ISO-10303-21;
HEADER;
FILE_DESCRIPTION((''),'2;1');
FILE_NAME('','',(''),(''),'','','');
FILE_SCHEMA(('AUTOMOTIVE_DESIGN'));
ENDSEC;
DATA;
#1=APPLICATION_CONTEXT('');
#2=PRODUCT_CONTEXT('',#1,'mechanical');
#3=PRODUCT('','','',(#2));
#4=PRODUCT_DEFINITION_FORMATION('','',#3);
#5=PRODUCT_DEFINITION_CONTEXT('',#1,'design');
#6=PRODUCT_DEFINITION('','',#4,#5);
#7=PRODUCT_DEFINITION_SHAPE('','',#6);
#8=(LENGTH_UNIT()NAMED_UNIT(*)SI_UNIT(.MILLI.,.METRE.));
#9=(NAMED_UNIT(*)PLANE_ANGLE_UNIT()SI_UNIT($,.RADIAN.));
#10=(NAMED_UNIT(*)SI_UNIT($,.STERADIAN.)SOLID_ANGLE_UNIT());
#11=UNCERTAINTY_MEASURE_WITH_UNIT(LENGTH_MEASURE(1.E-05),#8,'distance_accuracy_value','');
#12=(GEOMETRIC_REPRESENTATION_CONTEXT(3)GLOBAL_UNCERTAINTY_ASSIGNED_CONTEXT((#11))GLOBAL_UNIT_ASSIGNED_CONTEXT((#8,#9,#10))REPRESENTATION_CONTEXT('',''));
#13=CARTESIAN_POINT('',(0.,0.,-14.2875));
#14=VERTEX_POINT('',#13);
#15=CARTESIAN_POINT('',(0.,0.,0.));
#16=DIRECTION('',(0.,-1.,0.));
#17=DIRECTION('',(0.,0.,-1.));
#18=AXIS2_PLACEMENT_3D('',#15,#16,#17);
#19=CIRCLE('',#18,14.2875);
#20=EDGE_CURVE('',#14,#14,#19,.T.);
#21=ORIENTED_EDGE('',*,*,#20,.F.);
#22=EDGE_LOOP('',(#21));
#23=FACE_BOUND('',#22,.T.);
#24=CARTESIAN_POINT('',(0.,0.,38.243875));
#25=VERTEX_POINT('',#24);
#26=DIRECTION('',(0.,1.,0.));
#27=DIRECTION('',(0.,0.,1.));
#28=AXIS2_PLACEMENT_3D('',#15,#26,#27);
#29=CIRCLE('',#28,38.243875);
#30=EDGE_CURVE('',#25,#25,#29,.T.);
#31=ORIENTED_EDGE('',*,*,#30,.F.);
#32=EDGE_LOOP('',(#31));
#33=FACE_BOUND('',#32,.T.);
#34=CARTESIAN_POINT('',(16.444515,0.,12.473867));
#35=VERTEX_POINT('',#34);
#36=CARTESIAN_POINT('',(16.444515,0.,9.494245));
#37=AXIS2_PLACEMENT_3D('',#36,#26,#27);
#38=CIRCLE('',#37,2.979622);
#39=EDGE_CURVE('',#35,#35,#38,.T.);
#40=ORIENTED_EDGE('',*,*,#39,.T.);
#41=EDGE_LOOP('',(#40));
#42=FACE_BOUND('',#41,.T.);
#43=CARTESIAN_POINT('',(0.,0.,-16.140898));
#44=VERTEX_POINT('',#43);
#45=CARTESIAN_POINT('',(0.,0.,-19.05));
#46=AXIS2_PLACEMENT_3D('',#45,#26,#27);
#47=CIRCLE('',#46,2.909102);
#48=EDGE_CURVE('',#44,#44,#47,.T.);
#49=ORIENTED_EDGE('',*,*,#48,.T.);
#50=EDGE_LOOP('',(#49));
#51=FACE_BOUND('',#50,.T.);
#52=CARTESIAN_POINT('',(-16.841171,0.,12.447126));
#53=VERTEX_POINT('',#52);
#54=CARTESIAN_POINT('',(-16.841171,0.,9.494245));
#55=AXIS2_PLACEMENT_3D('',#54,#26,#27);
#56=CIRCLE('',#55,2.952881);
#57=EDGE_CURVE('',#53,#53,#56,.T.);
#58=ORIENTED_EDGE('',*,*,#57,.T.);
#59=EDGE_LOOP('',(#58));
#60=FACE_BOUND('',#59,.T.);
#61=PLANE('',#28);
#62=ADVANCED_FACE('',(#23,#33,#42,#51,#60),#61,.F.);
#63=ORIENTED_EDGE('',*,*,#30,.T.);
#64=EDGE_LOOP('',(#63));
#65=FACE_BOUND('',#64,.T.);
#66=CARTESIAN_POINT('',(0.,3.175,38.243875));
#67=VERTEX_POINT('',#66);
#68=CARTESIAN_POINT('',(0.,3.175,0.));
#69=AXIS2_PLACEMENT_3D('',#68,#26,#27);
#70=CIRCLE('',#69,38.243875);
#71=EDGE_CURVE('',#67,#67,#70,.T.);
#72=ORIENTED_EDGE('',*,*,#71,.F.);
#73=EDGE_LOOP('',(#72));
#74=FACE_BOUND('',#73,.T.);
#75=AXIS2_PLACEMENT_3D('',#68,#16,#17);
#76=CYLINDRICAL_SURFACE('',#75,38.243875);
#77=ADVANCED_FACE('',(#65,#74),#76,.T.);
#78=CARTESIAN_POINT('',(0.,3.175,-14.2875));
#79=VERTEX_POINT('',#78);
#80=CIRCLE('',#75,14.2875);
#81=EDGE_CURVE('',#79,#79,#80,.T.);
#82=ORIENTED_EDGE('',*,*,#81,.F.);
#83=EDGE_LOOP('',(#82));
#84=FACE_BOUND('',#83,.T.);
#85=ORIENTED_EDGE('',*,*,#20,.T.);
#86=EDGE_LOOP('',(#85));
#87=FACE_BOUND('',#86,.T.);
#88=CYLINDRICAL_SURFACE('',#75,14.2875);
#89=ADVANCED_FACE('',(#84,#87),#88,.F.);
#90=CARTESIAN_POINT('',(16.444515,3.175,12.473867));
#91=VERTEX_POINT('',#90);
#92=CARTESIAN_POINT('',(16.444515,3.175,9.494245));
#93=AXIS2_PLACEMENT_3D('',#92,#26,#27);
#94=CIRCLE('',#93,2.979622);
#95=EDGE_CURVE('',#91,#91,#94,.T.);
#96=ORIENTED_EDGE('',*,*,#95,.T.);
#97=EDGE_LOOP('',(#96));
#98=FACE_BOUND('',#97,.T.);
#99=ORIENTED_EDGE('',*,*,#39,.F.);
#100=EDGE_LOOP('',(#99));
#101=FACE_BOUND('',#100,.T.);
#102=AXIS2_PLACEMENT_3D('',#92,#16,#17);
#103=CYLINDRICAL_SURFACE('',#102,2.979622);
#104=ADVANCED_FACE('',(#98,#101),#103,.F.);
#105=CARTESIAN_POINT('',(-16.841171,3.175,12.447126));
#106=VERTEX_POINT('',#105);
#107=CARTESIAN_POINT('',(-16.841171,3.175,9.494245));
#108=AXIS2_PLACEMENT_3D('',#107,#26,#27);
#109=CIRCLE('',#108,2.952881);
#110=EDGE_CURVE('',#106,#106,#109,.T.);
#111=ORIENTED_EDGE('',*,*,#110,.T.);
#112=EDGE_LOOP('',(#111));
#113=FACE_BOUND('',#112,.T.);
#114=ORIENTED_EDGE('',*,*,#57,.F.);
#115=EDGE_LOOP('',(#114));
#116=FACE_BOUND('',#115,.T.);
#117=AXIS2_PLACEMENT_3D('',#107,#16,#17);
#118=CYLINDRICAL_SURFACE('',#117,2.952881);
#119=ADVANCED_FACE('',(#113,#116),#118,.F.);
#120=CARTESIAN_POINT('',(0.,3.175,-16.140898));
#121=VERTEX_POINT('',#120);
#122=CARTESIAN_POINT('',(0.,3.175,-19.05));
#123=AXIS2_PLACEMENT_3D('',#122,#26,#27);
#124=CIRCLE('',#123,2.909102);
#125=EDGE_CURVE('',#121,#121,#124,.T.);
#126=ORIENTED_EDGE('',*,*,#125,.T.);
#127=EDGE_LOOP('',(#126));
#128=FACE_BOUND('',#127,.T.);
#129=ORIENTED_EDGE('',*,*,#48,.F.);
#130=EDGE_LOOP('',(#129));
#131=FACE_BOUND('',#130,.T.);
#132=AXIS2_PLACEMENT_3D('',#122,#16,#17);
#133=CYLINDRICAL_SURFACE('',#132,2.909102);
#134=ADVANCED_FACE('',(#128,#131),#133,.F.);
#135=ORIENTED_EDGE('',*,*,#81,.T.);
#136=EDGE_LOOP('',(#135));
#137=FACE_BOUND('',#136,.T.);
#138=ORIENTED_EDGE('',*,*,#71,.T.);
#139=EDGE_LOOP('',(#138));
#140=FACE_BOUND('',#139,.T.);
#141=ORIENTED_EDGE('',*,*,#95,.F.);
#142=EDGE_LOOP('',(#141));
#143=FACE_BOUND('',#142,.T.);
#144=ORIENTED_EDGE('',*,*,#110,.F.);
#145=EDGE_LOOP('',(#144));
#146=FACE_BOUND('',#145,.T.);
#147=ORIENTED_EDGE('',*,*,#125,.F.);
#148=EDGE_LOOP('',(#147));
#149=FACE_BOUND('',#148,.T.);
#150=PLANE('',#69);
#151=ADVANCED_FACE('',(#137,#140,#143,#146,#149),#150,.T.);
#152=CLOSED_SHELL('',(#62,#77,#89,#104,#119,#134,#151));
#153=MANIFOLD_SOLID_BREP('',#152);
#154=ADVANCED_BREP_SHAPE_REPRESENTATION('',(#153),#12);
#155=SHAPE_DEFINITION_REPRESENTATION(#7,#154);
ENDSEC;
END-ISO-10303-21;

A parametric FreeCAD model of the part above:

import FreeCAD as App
import Part
import Sketcher

V = App.Vector
Q = App.Units.Quantity

doc = App.newDocument("Part")
body = doc.addObject("PartDesign::Body", "Body")

sketch1 = body.newObject("Sketcher::SketchObject", "Sketch")
sketch1.AttachmentSupport = (doc.getObject("XZ_Plane"), [""])
sketch1.MapMode = "FlatFace"
sketch1.addGeometry([
    Part.Circle(V(0, 0, 0), V(0, 0, 1), 38.2),
    Part.Circle(V(-16.8, 9.5, 0), V(0, 0, 1), 3),
    Part.Circle(V(0, -19.1, 0), V(0, 0, 1), 2.9),
    Part.Circle(V(0, 0, 0), V(0, 0, 1), 12.9),
    Part.Circle(V(16.4, 9.5, 0), V(0, 0, 1), 3),
], False)
sketch1.addConstraint([
    Sketcher.Constraint("Coincident", 0, 3, -1, 1),
    Sketcher.Constraint("Coincident", 3, 3, -1, 1),
    Sketcher.Constraint("PointOnObject", 2, 3, -2),
    Sketcher.Constraint("Horizontal", 1, 3, 4, 3),
    Sketcher.Constraint("DistanceY", 2, 3, -1, 1, Q("0.75 in")),
    Sketcher.Constraint("Diameter", 0, 76.48775),
    Sketcher.Constraint("Diameter", 1, 5.905761),
    Sketcher.Constraint("Diameter", 2, 5.818204),
    Sketcher.Constraint("Diameter", 3, 25.720868),
    Sketcher.Constraint("Diameter", 4, 5.959244),
    Sketcher.Constraint("DistanceX", 1, 3, -1, 1, 16.841171),
    Sketcher.Constraint("DistanceY", -1, 1, 1, 3, 9.494245),
    Sketcher.Constraint("DistanceX", -1, 1, 4, 3, 16.444515),
])
pad1 = body.newObject("PartDesign::Pad", "Pad")
pad1.Profile = sketch1
pad1.Length = Q("0.125 in")
pad1.Reversed = True

sketch2 = body.newObject("Sketcher::SketchObject", "Sketch001")
sketch2.AttachmentSupport = (doc.getObject("XZ_Plane"), [""])
sketch2.MapMode = "FlatFace"
sketch2.addGeometry(Part.Circle(V(0, 0, 0), V(0, 0, 1), 14), False)
sketch2.addConstraint([
    Sketcher.Constraint("Coincident", 0, 3, -1, 1),
    Sketcher.Constraint("Diameter", 0, Q("1.125 in")),
])
pocket1 = body.newObject("PartDesign::Pocket", "Pocket")
pocket1.Profile = sketch2
pocket1.Length = Q("0.125 in")

doc.recompute()
